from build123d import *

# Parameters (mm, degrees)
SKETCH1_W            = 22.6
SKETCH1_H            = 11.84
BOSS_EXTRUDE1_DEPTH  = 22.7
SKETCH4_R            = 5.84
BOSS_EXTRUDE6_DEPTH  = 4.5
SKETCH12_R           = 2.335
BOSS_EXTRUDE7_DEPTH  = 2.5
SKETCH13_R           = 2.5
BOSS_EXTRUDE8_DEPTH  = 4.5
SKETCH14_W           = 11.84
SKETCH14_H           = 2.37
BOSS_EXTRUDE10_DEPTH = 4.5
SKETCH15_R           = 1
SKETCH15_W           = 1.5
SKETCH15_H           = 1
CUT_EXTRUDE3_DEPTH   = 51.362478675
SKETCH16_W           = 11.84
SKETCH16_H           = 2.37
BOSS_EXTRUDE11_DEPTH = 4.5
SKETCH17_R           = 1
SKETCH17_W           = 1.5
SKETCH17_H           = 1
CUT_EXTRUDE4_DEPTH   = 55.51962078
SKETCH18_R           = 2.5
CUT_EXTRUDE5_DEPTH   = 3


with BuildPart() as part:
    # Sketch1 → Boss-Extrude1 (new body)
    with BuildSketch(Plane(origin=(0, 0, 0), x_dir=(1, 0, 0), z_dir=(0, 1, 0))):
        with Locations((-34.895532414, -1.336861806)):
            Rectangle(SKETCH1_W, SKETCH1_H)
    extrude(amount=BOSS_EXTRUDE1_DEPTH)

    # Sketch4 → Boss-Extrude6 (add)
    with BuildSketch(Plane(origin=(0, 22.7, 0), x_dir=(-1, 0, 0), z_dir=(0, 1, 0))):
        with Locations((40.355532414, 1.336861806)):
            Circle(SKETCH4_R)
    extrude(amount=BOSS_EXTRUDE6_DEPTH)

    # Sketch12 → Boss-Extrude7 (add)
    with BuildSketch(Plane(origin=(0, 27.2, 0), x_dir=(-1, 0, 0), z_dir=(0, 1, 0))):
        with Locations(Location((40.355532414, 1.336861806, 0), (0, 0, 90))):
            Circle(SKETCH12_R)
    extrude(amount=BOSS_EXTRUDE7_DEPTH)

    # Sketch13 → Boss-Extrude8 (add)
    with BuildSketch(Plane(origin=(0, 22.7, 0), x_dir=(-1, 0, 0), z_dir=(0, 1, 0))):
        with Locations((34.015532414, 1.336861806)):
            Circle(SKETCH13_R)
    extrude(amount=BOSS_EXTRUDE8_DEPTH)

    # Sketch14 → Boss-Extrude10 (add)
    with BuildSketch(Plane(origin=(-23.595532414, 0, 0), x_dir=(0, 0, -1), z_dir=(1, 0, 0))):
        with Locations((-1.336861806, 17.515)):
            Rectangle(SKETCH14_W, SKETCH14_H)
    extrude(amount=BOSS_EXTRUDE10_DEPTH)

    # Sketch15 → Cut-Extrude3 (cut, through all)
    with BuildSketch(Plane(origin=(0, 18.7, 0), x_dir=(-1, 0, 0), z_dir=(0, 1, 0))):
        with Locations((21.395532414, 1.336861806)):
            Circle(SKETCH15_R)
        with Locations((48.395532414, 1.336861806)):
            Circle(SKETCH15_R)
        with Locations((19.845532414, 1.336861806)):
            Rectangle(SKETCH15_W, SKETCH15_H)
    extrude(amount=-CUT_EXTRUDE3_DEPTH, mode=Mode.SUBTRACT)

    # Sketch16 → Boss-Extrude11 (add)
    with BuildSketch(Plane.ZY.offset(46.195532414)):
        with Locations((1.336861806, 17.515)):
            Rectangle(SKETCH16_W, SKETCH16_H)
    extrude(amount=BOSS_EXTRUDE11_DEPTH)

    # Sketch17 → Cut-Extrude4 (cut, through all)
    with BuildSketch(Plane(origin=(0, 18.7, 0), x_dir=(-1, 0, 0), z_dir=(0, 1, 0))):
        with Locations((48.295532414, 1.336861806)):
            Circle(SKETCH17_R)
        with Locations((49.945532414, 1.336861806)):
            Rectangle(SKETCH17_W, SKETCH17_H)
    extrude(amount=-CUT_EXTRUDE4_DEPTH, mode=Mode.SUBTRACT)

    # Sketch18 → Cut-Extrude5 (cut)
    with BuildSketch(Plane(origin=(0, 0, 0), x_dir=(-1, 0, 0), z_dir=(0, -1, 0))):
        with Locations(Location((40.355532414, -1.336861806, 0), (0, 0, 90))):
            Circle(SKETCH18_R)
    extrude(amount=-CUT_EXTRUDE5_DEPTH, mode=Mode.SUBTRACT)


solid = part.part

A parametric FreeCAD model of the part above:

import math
import FreeCAD as App
import Part
import Sketcher

V = App.Vector
Q = App.Units.Quantity


def add_polygon(sketch, points):
    """Adds a closed chain of lines whose ends are joined by coincident constraints."""
    first, n = sketch.GeometryCount, len(points)
    for a, b in zip(points, points[1:] + points[:1]):
        sketch.addGeometry(Part.LineSegment(App.Vector(*a, 0), App.Vector(*b, 0)), False)
    for i in range(n):
        sketch.addConstraint(Sketcher.Constraint("Coincident", first + i, 2, first + (i + 1) % n, 1))

doc = App.newDocument("Part")
body = doc.addObject("PartDesign::Body", "Body")

# Sketch on XZ plane
sketch1 = body.newObject("Sketcher::SketchObject", "Sketch")
sketch1.AttachmentSupport = (doc.getObject("XZ_Plane"), [""])
sketch1.MapMode = "FlatFace"
add_polygon(sketch1, [(-46.195532, -4.583138), (-46.195532, 7.256862), (-23.595532, 7.256862), (-23.595532, -4.583138)])  # lines 0-3
sketch1.addConstraint([
    Sketcher.Constraint("Vertical", 0),
    Sketcher.Constraint("Horizontal", 1),
    Sketcher.Constraint("Vertical", 2),
    Sketcher.Constraint("Horizontal", 3),
    Sketcher.Constraint("DistanceX", 1, 1, 1, 2, Q("22.6 mm")),
    Sketcher.Constraint("DistanceY", 0, 1, 0, 2, Q("11.84 mm")),
    Sketcher.Constraint("DistanceY", -1, 1, 0, 2, Q("7.256862 mm")),
    Sketcher.Constraint("DistanceX", 0, 2, -1, 1, Q("46.195532 mm")),
])
pad1 = body.newObject("PartDesign::Pad", "Pad")
pad1.Profile = sketch1
pad1.Length = 22.7
pad1.Reversed = True

# Sketch on XZ plane
sketch2 = body.newObject("Sketcher::SketchObject", "Sketch001")
sketch2.AttachmentSupport = (doc.getObject("XZ_Plane"), [""])
sketch2.MapMode = "FlatFace"
sketch2.AttachmentOffset = App.Placement(V(0, 0, -22.7), App.Rotation())
sketch2.addGeometry(Part.Circle(V(-40.355532, 1.336862, 0), V(0, 0, 1), 5.84), False)
sketch2.addConstraint([
    Sketcher.Constraint("Diameter", 0, Q("11.68 mm")),
    Sketcher.Constraint("DistanceY", -1, 1, 0, 3, Q("1.336862 mm")),
    Sketcher.Constraint("DistanceX", 0, 3, -1, 1, Q("40.355532 mm")),
])
pad2 = body.newObject("PartDesign::Pad", "Pad001")
pad2.Profile = sketch2
pad2.Length = 4.5
pad2.Reversed = True

# Sketch on XZ plane
sketch3 = body.newObject("Sketcher::SketchObject", "Sketch002")
sketch3.AttachmentSupport = (doc.getObject("XZ_Plane"), [""])
sketch3.MapMode = "FlatFace"
sketch3.AttachmentOffset = App.Placement(V(0, 0, -27.2), App.Rotation())
sketch3.addGeometry(Part.Circle(V(-40.355532, 1.336862, 0), V(0, 0, 1), 2.335), False)
sketch3.addConstraint([
    Sketcher.Constraint("Diameter", 0, Q("4.67 mm")),
    Sketcher.Constraint("DistanceY", -1, 1, 0, 3, Q("1.336862 mm")),
    Sketcher.Constraint("DistanceX", 0, 3, -1, 1, Q("40.355532 mm")),
])
pad3 = body.newObject("PartDesign::Pad", "Pad002")
pad3.Profile = sketch3
pad3.Length = 2.5
pad3.Reversed = True

# Sketch on XZ plane
sketch4 = body.newObject("Sketcher::SketchObject", "Sketch003")
sketch4.AttachmentSupport = (doc.getObject("XZ_Plane"), [""])
sketch4.MapMode = "FlatFace"
sketch4.AttachmentOffset = App.Placement(V(0, 0, -22.7), App.Rotation())
sketch4.addGeometry(Part.Circle(V(-34.015532, 1.336862, 0), V(0, 0, 1), 2.5), False)
sketch4.addConstraint([
    Sketcher.Constraint("Diameter", 0, Q("5 mm")),
    Sketcher.Constraint("DistanceY", -1, 1, 0, 3, Q("1.336862 mm")),
    Sketcher.Constraint("DistanceX", 0, 3, -1, 1, Q("34.015532 mm")),
])
pad4 = body.newObject("PartDesign::Pad", "Pad003")
pad4.Profile = sketch4
pad4.Length = 4.5
pad4.Reversed = True

# Sketch on YZ plane
sketch5 = body.newObject("Sketcher::SketchObject", "Sketch004")
sketch5.AttachmentSupport = (doc.getObject("YZ_Plane"), [""])
sketch5.MapMode = "FlatFace"
sketch5.AttachmentOffset = App.Placement(V(0, 0, -23.595532), App.Rotation())
add_polygon(sketch5, [(18.7, 7.256862), (16.33, 7.256862), (16.33, -4.583138), (18.7, -4.583138)])  # lines 0-3
sketch5.addConstraint([
    Sketcher.Constraint("Horizontal", 0),
    Sketcher.Constraint("Vertical", 1),
    Sketcher.Constraint("Horizontal", 2),
    Sketcher.Constraint("Vertical", 3),
    Sketcher.Constraint("DistanceX", 0, 2, 0, 1, Q("2.37 mm")),
    Sketcher.Constraint("DistanceY", 1, 2, 1, 1, Q("11.84 mm")),
    Sketcher.Constraint("DistanceX", -1, 1, 2, 2, Q("18.7 mm")),
    Sketcher.Constraint("DistanceY", -1, 1, 0, 2, Q("7.256862 mm")),
])
pad5 = body.newObject("PartDesign::Pad", "Pad004")
pad5.Profile = sketch5
pad5.Length = 4.5

# Sketch on XZ plane
sketch6 = body.newObject("Sketcher::SketchObject", "Sketch005")
sketch6.AttachmentSupport = (doc.getObject("XZ_Plane"), [""])
sketch6.MapMode = "FlatFace"
sketch6.AttachmentOffset = App.Placement(V(0, 0, -18.7), App.Rotation())
sketch6.addGeometry([
    Part.ArcOfCircle(Part.Circle(V(-21.395532, 1.336862, 0), V(0, 0, 1), 1), math.radians(30), math.radians(330)),  # 0
    Part.LineSegment(V(-20.529507, 1.836862, 0), V(-19.095532, 1.836862, 0)),  # 1
    Part.LineSegment(V(-19.095532, 1.836862, 0), V(-19.095532, 0.836862, 0)),  # 2
    Part.LineSegment(V(-19.095532, 0.836862, 0), V(-20.529507, 0.836862, 0)),  # 3
    Part.Circle(V(-48.395532, 1.336862, 0), V(0, 0, 1), 1),  # 4
], False)
sketch6.addConstraint([
    Sketcher.Constraint("Coincident", 0, 1, 1, 1),
    Sketcher.Constraint("Coincident", 1, 2, 2, 1),
    Sketcher.Constraint("Coincident", 2, 2, 3, 1),
    Sketcher.Constraint("Coincident", 3, 2, 0, 2),
    Sketcher.Constraint("Horizontal", 1),
    Sketcher.Constraint("Vertical", 2),
    Sketcher.Constraint("Horizontal", 3),
    Sketcher.Constraint("Equal", 0, 4),
    Sketcher.Constraint("Horizontal", 0, 3, 4, 3),
    Sketcher.Constraint("Vertical", 0, 1, 3, 2),
    Sketcher.Constraint("Diameter", 4, Q("2 mm")),
    Sketcher.Constraint("DistanceY", 2, 2, 2, 1, Q("1 mm")),
    Sketcher.Constraint("DistanceX", 4, 3, 0, 3, Q("27 mm")),
    Sketcher.Constraint("DistanceX", 0, 3, 1, 2, Q("2.3 mm")),
    Sketcher.Constraint("DistanceY", -1, 1, 0, 3, Q("1.336862 mm")),
    Sketcher.Constraint("DistanceX", 0, 3, -1, 1, Q("21.395532 mm")),
])
pocket1 = body.newObject("PartDesign::Pocket", "Pocket")
pocket1.Profile = sketch6
pocket1.Type = "ThroughAll"
pocket1.Reversed = True

# Sketch on YZ plane
sketch7 = body.newObject("Sketcher::SketchObject", "Sketch006")
sketch7.AttachmentSupport = (doc.getObject("YZ_Plane"), [""])
sketch7.MapMode = "FlatFace"
sketch7.AttachmentOffset = App.Placement(V(0, 0, -46.195532), App.Rotation())
add_polygon(sketch7, [(18.7, -4.583138), (16.33, -4.583138), (16.33, 7.256862), (18.7, 7.256862)])  # lines 0-3
sketch7.addConstraint([
    Sketcher.Constraint("Horizontal", 0),
    Sketcher.Constraint("Vertical", 1),
    Sketcher.Constraint("Horizontal", 2),
    Sketcher.Constraint("Vertical", 3),
    Sketcher.Constraint("DistanceX", 0, 2, 0, 1, Q("2.37 mm")),
    Sketcher.Constraint("DistanceY", 1, 1, 1, 2, Q("11.84 mm")),
    Sketcher.Constraint("DistanceX", -1, 1, 2, 2, Q("18.7 mm")),
    Sketcher.Constraint("DistanceY", 0, 2, -1, 1, Q("4.583138 mm")),
])
pad6 = body.newObject("PartDesign::Pad", "Pad005")
pad6.Profile = sketch7
pad6.Length = 4.5
pad6.Reversed = True

# Sketch on XZ plane
sketch8 = body.newObject("Sketcher::SketchObject", "Sketch007")
sketch8.AttachmentSupport = (doc.getObject("XZ_Plane"), [""])
sketch8.MapMode = "FlatFace"
sketch8.AttachmentOffset = App.Placement(V(0, 0, -18.7), App.Rotation())
sketch8.addGeometry([
    Part.LineSegment(V(-49.195532, 0.900972, 0), V(-49.195532, 0.836862, 0)),  # 0
    Part.LineSegment(V(-49.195532, 0.836862, 0), V(-50.695532, 0.836862, 0)),  # 1
    Part.LineSegment(V(-50.695532, 0.836862, 0), V(-50.695532, 1.836862, 0)),  # 2
    Part.LineSegment(V(-50.695532, 1.836862, 0), V(-49.195532, 1.836862, 0)),  # 3
    Part.LineSegment(V(-49.195532, 1.836862, 0), V(-49.195532, 1.772752, 0)),  # 4
    Part.ArcOfCircle(Part.Circle(V(-48.295532, 1.336862, 0), V(0, 0, 1), 1), math.radians(-154.158067), math.radians(154.158067)),  # 5
], False)
sketch8.addConstraint([
    Sketcher.Constraint("Coincident", 0, 2, 1, 1),
    Sketcher.Constraint("Coincident", 1, 2, 2, 1),
    Sketcher.Constraint("Coincident", 2, 2, 3, 1),
    Sketcher.Constraint("Coincident", 3, 2, 4, 1),
    Sketcher.Constraint("Coincident", 4, 2, 5, 2),
    Sketcher.Constraint("Coincident", 5, 1, 0, 1),
    Sketcher.Constraint("Vertical", 0),
    Sketcher.Constraint("Horizontal", 1),
    Sketcher.Constraint("Vertical", 2),
    Sketcher.Constraint("Horizontal", 3),
    Sketcher.Constraint("Vertical", 4),
    Sketcher.Constraint("Vertical", 0, 2, 3, 2),
    Sketcher.Constraint("Equal", 0, 4),
    Sketcher.Constraint("Radius", 5, Q("1 mm")),
    Sketcher.Constraint("DistanceY", 2, 1, 2, 2, Q("1 mm")),
    Sketcher.Constraint("DistanceX", 1, 2, 1, 1, Q("1.5 mm")),
    Sketcher.Constraint("DistanceX", 0, 2, 5, 3, Q("0.9 mm")),
    Sketcher.Constraint("DistanceY", -1, 1, 5, 3, Q("1.336862 mm")),
    Sketcher.Constraint("DistanceX", 5, 3, -1, 1, Q("48.295532 mm")),
])
pocket2 = body.newObject("PartDesign::Pocket", "Pocket001")
pocket2.Profile = sketch8
pocket2.Type = "ThroughAll"
pocket2.Reversed = True

# Sketch on XZ plane
sketch9 = body.newObject("Sketcher::SketchObject", "Sketch008")
sketch9.AttachmentSupport = (doc.getObject("XZ_Plane"), [""])
sketch9.MapMode = "FlatFace"
sketch9.addGeometry(Part.Circle(V(-40.355532, 1.336862, 0), V(0, 0, 1), 2.5), False)
sketch9.addConstraint([
    Sketcher.Constraint("Diameter", 0, Q("5 mm")),
    Sketcher.Constraint("DistanceY", -1, 1, 0, 3, Q("1.336862 mm")),
    Sketcher.Constraint("DistanceX", 0, 3, -1, 1, Q("40.355532 mm")),
])
pocket3 = body.newObject("PartDesign::Pocket", "Pocket002")
pocket3.Profile = sketch9
pocket3.Length = 3

doc.recompute()
